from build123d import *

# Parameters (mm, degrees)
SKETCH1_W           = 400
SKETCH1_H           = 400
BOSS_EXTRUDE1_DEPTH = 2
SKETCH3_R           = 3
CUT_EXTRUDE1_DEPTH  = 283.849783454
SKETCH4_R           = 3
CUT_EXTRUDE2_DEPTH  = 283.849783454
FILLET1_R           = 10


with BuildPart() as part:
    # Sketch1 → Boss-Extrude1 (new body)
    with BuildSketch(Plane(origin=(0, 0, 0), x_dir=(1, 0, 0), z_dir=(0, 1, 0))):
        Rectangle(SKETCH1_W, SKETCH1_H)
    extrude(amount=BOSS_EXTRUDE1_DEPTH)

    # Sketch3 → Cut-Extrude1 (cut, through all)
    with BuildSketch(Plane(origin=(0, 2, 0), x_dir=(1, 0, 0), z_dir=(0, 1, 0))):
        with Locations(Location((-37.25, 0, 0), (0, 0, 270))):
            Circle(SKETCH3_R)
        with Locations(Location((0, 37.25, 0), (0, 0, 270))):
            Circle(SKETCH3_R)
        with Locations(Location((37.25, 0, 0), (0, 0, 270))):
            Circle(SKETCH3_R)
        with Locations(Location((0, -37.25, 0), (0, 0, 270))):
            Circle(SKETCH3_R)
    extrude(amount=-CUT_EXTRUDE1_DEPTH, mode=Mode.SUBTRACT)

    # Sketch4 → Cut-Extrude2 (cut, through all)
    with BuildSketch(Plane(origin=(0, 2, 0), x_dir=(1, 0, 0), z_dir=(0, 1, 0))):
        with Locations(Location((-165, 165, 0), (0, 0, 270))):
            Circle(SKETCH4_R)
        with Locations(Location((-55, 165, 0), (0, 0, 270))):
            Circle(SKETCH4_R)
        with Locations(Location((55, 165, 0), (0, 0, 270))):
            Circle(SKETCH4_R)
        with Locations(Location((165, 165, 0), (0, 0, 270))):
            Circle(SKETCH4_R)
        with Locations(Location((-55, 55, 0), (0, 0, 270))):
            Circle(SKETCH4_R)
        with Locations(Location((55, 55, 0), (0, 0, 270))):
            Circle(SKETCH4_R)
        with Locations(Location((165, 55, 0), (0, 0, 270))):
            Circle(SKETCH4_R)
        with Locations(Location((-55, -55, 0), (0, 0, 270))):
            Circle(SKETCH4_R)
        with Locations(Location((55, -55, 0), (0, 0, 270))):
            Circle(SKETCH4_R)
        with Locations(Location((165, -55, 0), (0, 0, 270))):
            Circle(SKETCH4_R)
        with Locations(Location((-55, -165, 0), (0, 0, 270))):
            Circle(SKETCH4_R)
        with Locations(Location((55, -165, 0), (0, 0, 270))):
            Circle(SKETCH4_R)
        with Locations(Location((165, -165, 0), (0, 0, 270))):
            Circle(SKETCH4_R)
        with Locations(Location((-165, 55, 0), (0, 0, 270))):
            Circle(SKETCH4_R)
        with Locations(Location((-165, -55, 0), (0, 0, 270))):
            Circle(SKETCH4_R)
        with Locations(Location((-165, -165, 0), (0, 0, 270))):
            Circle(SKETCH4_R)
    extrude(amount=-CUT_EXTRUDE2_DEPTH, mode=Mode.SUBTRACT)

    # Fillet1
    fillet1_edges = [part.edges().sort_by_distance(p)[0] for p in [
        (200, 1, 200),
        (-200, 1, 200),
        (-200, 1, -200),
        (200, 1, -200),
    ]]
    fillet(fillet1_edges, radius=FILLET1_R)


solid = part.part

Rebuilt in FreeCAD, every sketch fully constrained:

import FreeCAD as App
import Part
import Sketcher

V = App.Vector


def edges_at(feature, points):
    """Names of the edges that pass closest to the given points."""
    edges = feature.Shape.Edges
    near = lambda p: min(range(len(edges)), key=lambda i: edges[i].distToShape(Part.Vertex(*p))[0])
    return sorted({f"Edge{near(p) + 1}" for p in points})


def add_polygon(sketch, points):
    """Adds a closed chain of lines whose ends are joined by coincident constraints."""
    first, n = sketch.GeometryCount, len(points)
    for a, b in zip(points, points[1:] + points[:1]):
        sketch.addGeometry(Part.LineSegment(App.Vector(*a, 0), App.Vector(*b, 0)), False)
    for i in range(n):
        sketch.addConstraint(Sketcher.Constraint("Coincident", first + i, 2, first + (i + 1) % n, 1))

doc = App.newDocument("Part")
body = doc.addObject("PartDesign::Body", "Body")

sketch1 = body.newObject("Sketcher::SketchObject", "Sketch")
sketch1.AttachmentSupport = (doc.getObject("XZ_Plane"), [""])
sketch1.MapMode = "FlatFace"
add_polygon(sketch1, [(-200, -200), (-200, 200), (200, 200), (200, -200)])
sketch1.addConstraint(Sketcher.Constraint("Vertical", 0))
sketch1.addConstraint(Sketcher.Constraint("Horizontal", 1))
sketch1.addConstraint(Sketcher.Constraint("Vertical", 2))
sketch1.addConstraint(Sketcher.Constraint("Horizontal", 3))
sketch1.addConstraint(Sketcher.Constraint("Symmetric", 0, 2, 2, 2, -1, 1))
sketch1.addConstraint(Sketcher.Constraint("Equal", 3, 0))
sketch1.addConstraint(Sketcher.Constraint("DistanceX", 1, 1, 1, 2, 400.0))
pad1 = body.newObject("PartDesign::Pad", "Pad")
pad1.Profile = sketch1
pad1.Length = 2
pad1.Reversed = True

sketch2 = body.newObject("Sketcher::SketchObject", "Sketch001")
sketch2.AttachmentSupport = (doc.getObject("XZ_Plane"), [""])
sketch2.MapMode = "FlatFace"
sketch2.AttachmentOffset = App.Placement(V(0, 0, -2), App.Rotation())
sketch2.addGeometry(Part.Circle(V(-37.2, 0, 0), V(0, 0, 1), 3), False)
sketch2.addGeometry(Part.Circle(V(0, -37.2, 0), V(0, 0, 1), 3), False)
sketch2.addGeometry(Part.Circle(V(37.2, 0, 0), V(0, 0, 1), 3), False)
sketch2.addGeometry(Part.Circle(V(0, 37.2, 0), V(0, 0, 1), 3), False)
sketch2.addConstraint(Sketcher.Constraint("Equal", 0, 1))
sketch2.addConstraint(Sketcher.Constraint("Equal", 1, 2))
sketch2.addConstraint(Sketcher.Constraint("Equal", 2, 3))
sketch2.addConstraint(Sketcher.Constraint("Symmetric", 0, 3, 2, 3, -1, 1))
sketch2.addConstraint(Sketcher.Constraint("Symmetric", 1, 3, 3, 3, -1, 1))
sketch2.addConstraint(Sketcher.Constraint("PointOnObject", 0, 3, -1))
sketch2.addConstraint(Sketcher.Constraint("PointOnObject", 1, 3, -2))
sketch2.addConstraint(Sketcher.Constraint("Diameter", 0, 6.0))
sketch2.addConstraint(Sketcher.Constraint("DistanceX", 0, 3, 2, 3, 74.5))
sketch2.addConstraint(Sketcher.Constraint("DistanceY", 1, 3, 3, 3, 74.5))
pocket1 = body.newObject("PartDesign::Pocket", "Pocket")
pocket1.Profile = sketch2
pocket1.Type = "ThroughAll"
pocket1.Reversed = True

sketch3 = body.newObject("Sketcher::SketchObject", "Sketch002")
sketch3.AttachmentSupport = (doc.getObject("XZ_Plane"), [""])
sketch3.MapMode = "FlatFace"
sketch3.AttachmentOffset = App.Placement(V(0, 0, -2), App.Rotation())
sketch3.addGeometry(Part.Circle(V(-165, -165, 0), V(0, 0, 1), 3), False)
sketch3.addGeometry(Part.Circle(V(-55, -165, 0), V(0, 0, 1), 3), False)
sketch3.addGeometry(Part.Circle(V(55, -165, 0), V(0, 0, 1), 3), False)
sketch3.addGeometry(Part.Circle(V(165, -165, 0), V(0, 0, 1), 3), False)
sketch3.addGeometry(Part.Circle(V(-55, -55, 0), V(0, 0, 1), 3), False)
sketch3.addGeometry(Part.Circle(V(55, -55, 0), V(0, 0, 1), 3), False)
sketch3.addGeometry(Part.Circle(V(165, -55, 0), V(0, 0, 1), 3), False)
sketch3.addGeometry(Part.Circle(V(-55, 55, 0), V(0, 0, 1), 3), False)
sketch3.addGeometry(Part.Circle(V(55, 55, 0), V(0, 0, 1), 3), False)
sketch3.addGeometry(Part.Circle(V(165, 55, 0), V(0, 0, 1), 3), False)
sketch3.addGeometry(Part.Circle(V(-55, 165, 0), V(0, 0, 1), 3), False)
sketch3.addGeometry(Part.Circle(V(55, 165, 0), V(0, 0, 1), 3), False)
sketch3.addGeometry(Part.Circle(V(165, 165, 0), V(0, 0, 1), 3), False)
sketch3.addGeometry(Part.Circle(V(-165, -55, 0), V(0, 0, 1), 3), False)
sketch3.addGeometry(Part.Circle(V(-165, 55, 0), V(0, 0, 1), 3), False)
sketch3.addGeometry(Part.Circle(V(-165, 165, 0), V(0, 0, 1), 3), False)
sketch3.addConstraint(Sketcher.Constraint("Equal", 0, 1))
sketch3.addConstraint(Sketcher.Constraint("Equal", 1, 2))
sketch3.addConstraint(Sketcher.Constraint("Equal", 2, 3))
sketch3.addConstraint(Sketcher.Constraint("Equal", 3, 4))
sketch3.addConstraint(Sketcher.Constraint("Equal", 4, 5))
sketch3.addConstraint(Sketcher.Constraint("Equal", 5, 6))
sketch3.addConstraint(Sketcher.Constraint("Equal", 6, 7))
sketch3.addConstraint(Sketcher.Constraint("Equal", 7, 8))
sketch3.addConstraint(Sketcher.Constraint("Equal", 8, 9))
sketch3.addConstraint(Sketcher.Constraint("Equal", 9, 10))
sketch3.addConstraint(Sketcher.Constraint("Equal", 10, 11))
sketch3.addConstraint(Sketcher.Constraint("Equal", 11, 12))
sketch3.addConstraint(Sketcher.Constraint("Equal", 12, 13))
sketch3.addConstraint(Sketcher.Constraint("Equal", 13, 14))
sketch3.addConstraint(Sketcher.Constraint("Equal", 14, 15))
sketch3.addConstraint(Sketcher.Constraint("Symmetric", 5, 3, 7, 3, -1, 1))
sketch3.addConstraint(Sketcher.Constraint("Symmetric", 4, 3, 8, 3, -1, 1))
sketch3.addConstraint(Sketcher.Constraint("Symmetric", 2, 3, 10, 3, -1, 1))
sketch3.addConstraint(Sketcher.Constraint("Symmetric", 1, 3, 11, 3, -1, 1))
sketch3.addConstraint(Sketcher.Constraint("Symmetric", 0, 3, 12, 3, -1, 1))
sketch3.addConstraint(Sketcher.Constraint("Symmetric", 9, 3, 13, 3, -1, 1))
sketch3.addConstraint(Sketcher.Constraint("Symmetric", 6, 3, 14, 3, -1, 1))
sketch3.addConstraint(Sketcher.Constraint("Symmetric", 3, 3, 15, 3, -1, 1))
sketch3.addConstraint(Sketcher.Constraint("Symmetric", 1, 3, 2, 3, -2))
sketch3.addConstraint(Sketcher.Constraint("Symmetric", 0, 3, 3, 3, -2))
sketch3.addConstraint(Sketcher.Constraint("Symmetric", 4, 3, 5, 3, -2))
sketch3.addConstraint(Sketcher.Constraint("Symmetric", 6, 3, 13, 3, -2))
sketch3.addConstraint(Sketcher.Constraint("Horizontal", 0, 3, 1, 3))
sketch3.addConstraint(Sketcher.Constraint("Horizontal", 5, 3, 6, 3))
sketch3.addConstraint(Sketcher.Constraint("Vertical", 1, 3, 4, 3))
sketch3.addConstraint(Sketcher.Constraint("Vertical", 3, 3, 6, 3))
sketch3.addConstraint(Sketcher.Constraint("Diameter", 0, 6.0))
sketch3.addConstraint(Sketcher.Constraint("DistanceX", 0, 3, -1, 1, 165.0))
sketch3.addConstraint(Sketcher.Constraint("DistanceY", 0, 3, -1, 1, 165.0))
sketch3.addConstraint(Sketcher.Constraint("DistanceX", 1, 3, -1, 1, 55.0))
sketch3.addConstraint(Sketcher.Constraint("DistanceY", 4, 3, -1, 1, 55.0))
pocket2 = body.newObject("PartDesign::Pocket", "Pocket001")
pocket2.Profile = sketch3
pocket2.Type = "ThroughAll"
pocket2.Reversed = True
doc.recompute()

fillet = body.newObject("PartDesign::Fillet", "Fillet")
fillet.Base = (pocket2, edges_at(pocket2, [
    (200, 1, 200),
    (-200, 1, 200),
    (-200, 1, -200),
    (200, 1, -200),
]))
fillet.Radius = 10

doc.recompute()
